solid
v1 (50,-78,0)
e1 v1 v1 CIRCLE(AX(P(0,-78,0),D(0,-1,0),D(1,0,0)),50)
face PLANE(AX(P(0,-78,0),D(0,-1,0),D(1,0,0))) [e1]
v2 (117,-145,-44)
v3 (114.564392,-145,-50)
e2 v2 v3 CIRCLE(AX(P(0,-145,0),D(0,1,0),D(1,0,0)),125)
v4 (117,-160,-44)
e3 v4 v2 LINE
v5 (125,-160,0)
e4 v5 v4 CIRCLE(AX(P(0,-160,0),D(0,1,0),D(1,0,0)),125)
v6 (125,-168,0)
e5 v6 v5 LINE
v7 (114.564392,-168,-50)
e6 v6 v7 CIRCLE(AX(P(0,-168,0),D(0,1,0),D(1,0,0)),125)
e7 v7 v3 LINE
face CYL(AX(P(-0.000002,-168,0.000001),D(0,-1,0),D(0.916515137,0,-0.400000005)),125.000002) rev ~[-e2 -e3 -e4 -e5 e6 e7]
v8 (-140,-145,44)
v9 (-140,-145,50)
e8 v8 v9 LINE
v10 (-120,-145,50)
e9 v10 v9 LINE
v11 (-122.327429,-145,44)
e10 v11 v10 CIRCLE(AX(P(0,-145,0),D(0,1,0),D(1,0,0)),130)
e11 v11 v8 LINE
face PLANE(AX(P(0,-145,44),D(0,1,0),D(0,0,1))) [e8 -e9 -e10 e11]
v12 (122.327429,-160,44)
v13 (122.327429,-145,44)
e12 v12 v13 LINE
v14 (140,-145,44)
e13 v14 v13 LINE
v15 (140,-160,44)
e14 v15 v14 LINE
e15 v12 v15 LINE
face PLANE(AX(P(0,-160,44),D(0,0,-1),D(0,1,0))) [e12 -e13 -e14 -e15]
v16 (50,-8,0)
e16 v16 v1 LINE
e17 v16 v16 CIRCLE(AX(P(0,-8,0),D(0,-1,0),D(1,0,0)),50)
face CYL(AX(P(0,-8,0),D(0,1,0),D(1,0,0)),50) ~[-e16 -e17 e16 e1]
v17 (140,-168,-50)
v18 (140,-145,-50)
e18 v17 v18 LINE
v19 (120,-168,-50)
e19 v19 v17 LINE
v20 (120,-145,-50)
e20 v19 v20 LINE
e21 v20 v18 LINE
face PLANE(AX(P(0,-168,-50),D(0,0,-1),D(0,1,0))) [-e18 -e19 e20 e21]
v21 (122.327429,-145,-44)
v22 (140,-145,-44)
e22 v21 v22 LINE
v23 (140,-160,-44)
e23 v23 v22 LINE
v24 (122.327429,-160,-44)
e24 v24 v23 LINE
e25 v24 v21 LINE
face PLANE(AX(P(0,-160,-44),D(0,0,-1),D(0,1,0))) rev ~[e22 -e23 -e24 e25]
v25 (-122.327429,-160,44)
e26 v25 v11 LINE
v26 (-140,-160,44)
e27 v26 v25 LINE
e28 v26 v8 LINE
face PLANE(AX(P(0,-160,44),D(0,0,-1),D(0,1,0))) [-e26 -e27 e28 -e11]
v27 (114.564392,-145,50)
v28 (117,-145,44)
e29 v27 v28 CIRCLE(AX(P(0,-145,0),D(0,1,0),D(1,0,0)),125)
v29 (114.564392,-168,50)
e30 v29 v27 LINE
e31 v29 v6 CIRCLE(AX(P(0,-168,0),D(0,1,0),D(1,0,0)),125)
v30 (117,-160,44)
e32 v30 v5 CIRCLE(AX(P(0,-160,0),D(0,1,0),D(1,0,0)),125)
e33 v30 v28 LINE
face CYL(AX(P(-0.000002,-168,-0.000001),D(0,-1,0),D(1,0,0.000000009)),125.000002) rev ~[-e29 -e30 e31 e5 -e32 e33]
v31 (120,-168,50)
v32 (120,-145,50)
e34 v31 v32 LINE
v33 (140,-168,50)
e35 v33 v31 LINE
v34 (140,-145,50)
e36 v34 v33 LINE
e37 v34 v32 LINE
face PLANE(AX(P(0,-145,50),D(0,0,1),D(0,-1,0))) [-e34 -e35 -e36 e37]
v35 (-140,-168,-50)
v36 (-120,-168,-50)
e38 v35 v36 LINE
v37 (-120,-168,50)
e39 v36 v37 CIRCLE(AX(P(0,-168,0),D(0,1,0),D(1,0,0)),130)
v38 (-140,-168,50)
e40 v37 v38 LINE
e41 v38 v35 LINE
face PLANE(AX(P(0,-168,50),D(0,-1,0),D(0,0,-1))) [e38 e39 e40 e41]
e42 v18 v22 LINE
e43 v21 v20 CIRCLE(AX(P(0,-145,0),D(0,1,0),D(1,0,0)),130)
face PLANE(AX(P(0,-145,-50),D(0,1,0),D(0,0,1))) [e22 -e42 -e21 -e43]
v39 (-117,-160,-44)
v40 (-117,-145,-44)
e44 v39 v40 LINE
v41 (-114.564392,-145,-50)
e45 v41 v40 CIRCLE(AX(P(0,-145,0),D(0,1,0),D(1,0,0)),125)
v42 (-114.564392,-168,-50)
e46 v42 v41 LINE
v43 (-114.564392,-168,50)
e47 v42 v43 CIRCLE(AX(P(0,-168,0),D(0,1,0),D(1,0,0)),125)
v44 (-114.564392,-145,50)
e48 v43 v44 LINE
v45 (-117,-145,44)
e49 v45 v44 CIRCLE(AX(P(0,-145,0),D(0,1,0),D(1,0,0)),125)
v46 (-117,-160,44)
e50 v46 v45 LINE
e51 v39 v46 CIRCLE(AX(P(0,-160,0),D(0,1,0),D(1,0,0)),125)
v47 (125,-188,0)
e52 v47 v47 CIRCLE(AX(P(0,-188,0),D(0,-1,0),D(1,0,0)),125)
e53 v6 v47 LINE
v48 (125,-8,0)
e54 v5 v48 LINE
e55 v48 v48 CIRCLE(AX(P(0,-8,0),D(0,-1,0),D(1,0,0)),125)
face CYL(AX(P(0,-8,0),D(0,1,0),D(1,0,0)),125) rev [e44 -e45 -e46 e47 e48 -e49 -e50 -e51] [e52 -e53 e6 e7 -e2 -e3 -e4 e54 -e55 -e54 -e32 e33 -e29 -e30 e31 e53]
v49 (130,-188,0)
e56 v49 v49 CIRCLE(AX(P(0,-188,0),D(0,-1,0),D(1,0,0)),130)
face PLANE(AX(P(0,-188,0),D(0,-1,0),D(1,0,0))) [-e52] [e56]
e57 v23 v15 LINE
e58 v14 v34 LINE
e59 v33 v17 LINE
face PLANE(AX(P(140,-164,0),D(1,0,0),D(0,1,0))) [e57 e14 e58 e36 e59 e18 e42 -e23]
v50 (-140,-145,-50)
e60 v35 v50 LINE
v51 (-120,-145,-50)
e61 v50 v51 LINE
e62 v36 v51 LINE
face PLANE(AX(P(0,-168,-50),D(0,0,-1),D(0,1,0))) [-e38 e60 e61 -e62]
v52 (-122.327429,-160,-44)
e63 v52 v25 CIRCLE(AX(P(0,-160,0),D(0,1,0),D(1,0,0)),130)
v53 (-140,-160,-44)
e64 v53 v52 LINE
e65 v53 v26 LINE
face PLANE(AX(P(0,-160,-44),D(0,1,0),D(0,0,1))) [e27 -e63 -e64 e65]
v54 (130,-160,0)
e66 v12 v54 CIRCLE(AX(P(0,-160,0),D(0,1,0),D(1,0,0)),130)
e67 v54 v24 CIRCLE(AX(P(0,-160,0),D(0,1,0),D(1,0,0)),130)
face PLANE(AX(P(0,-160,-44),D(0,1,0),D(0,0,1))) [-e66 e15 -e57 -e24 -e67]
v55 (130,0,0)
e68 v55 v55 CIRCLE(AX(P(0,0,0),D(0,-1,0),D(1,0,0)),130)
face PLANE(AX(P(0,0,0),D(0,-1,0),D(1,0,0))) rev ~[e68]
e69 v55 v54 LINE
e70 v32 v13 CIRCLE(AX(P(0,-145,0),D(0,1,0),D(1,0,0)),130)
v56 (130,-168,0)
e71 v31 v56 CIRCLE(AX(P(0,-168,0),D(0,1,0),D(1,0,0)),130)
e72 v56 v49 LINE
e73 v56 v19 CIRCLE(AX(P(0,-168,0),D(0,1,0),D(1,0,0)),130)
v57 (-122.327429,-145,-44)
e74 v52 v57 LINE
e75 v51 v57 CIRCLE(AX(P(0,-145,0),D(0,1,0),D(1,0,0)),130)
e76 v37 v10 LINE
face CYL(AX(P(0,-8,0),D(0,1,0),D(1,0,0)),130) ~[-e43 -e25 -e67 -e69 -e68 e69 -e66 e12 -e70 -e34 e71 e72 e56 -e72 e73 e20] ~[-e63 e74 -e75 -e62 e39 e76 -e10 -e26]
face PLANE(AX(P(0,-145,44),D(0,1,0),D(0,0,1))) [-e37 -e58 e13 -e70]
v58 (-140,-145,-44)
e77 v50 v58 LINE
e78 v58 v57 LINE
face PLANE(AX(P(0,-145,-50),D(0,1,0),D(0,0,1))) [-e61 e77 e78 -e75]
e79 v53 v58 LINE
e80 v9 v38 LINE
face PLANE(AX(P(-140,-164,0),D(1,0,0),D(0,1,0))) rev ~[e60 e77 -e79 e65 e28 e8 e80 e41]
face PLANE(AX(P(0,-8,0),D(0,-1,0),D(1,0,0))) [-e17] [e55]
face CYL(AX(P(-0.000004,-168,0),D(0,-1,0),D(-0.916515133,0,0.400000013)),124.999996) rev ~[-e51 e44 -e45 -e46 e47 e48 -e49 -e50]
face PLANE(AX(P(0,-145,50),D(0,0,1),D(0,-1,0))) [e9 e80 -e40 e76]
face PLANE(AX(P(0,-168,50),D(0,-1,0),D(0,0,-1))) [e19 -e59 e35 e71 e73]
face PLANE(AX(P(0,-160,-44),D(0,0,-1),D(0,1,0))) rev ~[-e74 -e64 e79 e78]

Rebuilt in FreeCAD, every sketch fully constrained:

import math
import FreeCAD as App
import Part
import Sketcher
from FreeCAD import Vector
Q = App.Units.Quantity


def add_polygon(sketch, points):
    """Adds a closed chain of lines whose ends are joined by coincident constraints."""
    first, n = sketch.GeometryCount, len(points)
    for a, b in zip(points, points[1:] + points[:1]):
        sketch.addGeometry(Part.LineSegment(App.Vector(*a, 0), App.Vector(*b, 0)), False)
    for i in range(n):
        sketch.addConstraint(Sketcher.Constraint("Coincident", first + i, 2, first + (i + 1) % n, 1))

doc = App.newDocument("Part")
params = doc.addObject("Spreadsheet::Sheet", "Params")
for row, (alias, value) in enumerate([
    ("sketch1_diameter", "260 mm"),
    ("pad1_length", "8 mm"),
    ("sketch2_diameter", "260 mm"),
    ("sketch2_diameter2", "250 mm"),
    ("pad2_length", "180 mm"),
    ("sketch3_diameter", "100 mm"),
    ("pad3_length", "70 mm"),
    ("sketch4_width", "23 mm"),
    ("sketch4_width2", "15 mm"),
    ("sketch4_height", "100 mm"),
    ("sketch4_height2", "6 mm"),
    ("pad4_length", "280 mm"),
    ("sketch5_radius", "125.000002 mm"),
    ("pocket1_length", "25 mm"),
], start=1):
    params.set(f"A{row}", alias)
    params.set(f"B{row}", "=" + value)
    params.setAlias(f"B{row}", alias)

body = doc.addObject("PartDesign::Body", "Body")

# Sketch on XZ plane
sketch1 = doc.addObject("Sketcher::SketchObject", "Sketch")
body.addObject(sketch1)
sketch1.AttachmentSupport = (doc.XZ_Plane, [""])
sketch1.MapMode = "FlatFace"
sketch1.addGeometry(Part.Circle(Vector(0, 0, 0), Vector(0, 0, 1), 130), False)
sketch1.addConstraint([
    Sketcher.Constraint("Coincident", 0, 3, -1, 1),
    Sketcher.Constraint("Diameter", 0, Q("260 mm")),
])
sketch1.setExpression("Constraints[1]", "Params.sketch1_diameter")
pad1 = doc.addObject("PartDesign::Pad", "Pad")
body.addObject(pad1)
pad1.Profile = sketch1
pad1.setExpression("Length", "Params.pad1_length")

# Sketch on XZ plane
sketch2 = doc.addObject("Sketcher::SketchObject", "Sketch001")
body.addObject(sketch2)
sketch2.AttachmentSupport = (doc.XZ_Plane, [""])
sketch2.MapMode = "FlatFace"
sketch2.AttachmentOffset = App.Placement(Vector(0, 0, 8), App.Rotation())
sketch2.addGeometry([
    Part.Circle(Vector(0, 0, 0), Vector(0, 0, 1), 130),
    Part.Circle(Vector(0, 0, 0), Vector(0, 0, 1), 125),
], False)
sketch2.addConstraint([
    Sketcher.Constraint("Coincident", 0, 3, -1, 1),
    Sketcher.Constraint("Coincident", 1, 3, -1, 1),
    Sketcher.Constraint("Diameter", 0, Q("260 mm")),
    Sketcher.Constraint("Diameter", 1, Q("250 mm")),
])
sketch2.setExpression("Constraints[2]", "Params.sketch2_diameter")
sketch2.setExpression("Constraints[3]", "Params.sketch2_diameter2")
pad2 = doc.addObject("PartDesign::Pad", "Pad001")
body.addObject(pad2)
pad2.Profile = sketch2
pad2.setExpression("Length", "Params.pad2_length")

# Sketch on XZ plane
sketch3 = doc.addObject("Sketcher::SketchObject", "Sketch002")
body.addObject(sketch3)
sketch3.AttachmentSupport = (doc.XZ_Plane, [""])
sketch3.MapMode = "FlatFace"
sketch3.AttachmentOffset = App.Placement(Vector(0, 0, 8), App.Rotation())
sketch3.addGeometry(Part.Circle(Vector(0, 0, 0), Vector(0, 0, 1), 50), False)
sketch3.addConstraint([
    Sketcher.Constraint("Coincident", 0, 3, -1, 1),
    Sketcher.Constraint("Diameter", 0, Q("100 mm")),
])
sketch3.setExpression("Constraints[1]", "Params.sketch3_diameter")
pad3 = doc.addObject("PartDesign::Pad", "Pad002")
body.addObject(pad3)
pad3.Profile = sketch3
pad3.setExpression("Length", "Params.pad3_length")

# Sketch on YZ plane
sketch4 = doc.addObject("Sketcher::SketchObject", "Sketch003")
body.addObject(sketch4)
sketch4.AttachmentSupport = (doc.YZ_Plane, [""])
sketch4.MapMode = "FlatFace"
add_polygon(sketch4, [(-168, 50), (-168, -50), (-145, -50), (-145, -44), (-160, -44), (-160, 44), (-145, 44), (-145, 50)])  # lines 0-7
sketch4.addConstraint([
    Sketcher.Constraint("Vertical", 0),
    Sketcher.Constraint("Horizontal", 1),
    Sketcher.Constraint("Vertical", 2),
    Sketcher.Constraint("Horizontal", 3),
    Sketcher.Constraint("Vertical", 4),
    Sketcher.Constraint("Horizontal", 5),
    Sketcher.Constraint("Vertical", 6),
    Sketcher.Constraint("Horizontal", 7),
    Sketcher.Constraint("Symmetric", 2, 2, 5, 2, -1),
    Sketcher.Constraint("Equal", 2, 6),
    Sketcher.Constraint("DistanceX", 1, 1, 1, 2, Q("23 mm")),
    Sketcher.Constraint("DistanceX", 3, 2, 3, 1, Q("15 mm")),
    Sketcher.Constraint("DistanceY", 0, 2, 0, 1, Q("100 mm")),
    Sketcher.Constraint("DistanceY", 2, 1, 2, 2, Q("6 mm")),
    Sketcher.Constraint("DistanceX", 0, 2, -1, 1, Q("168 mm")),
])
sketch4.setExpression("Constraints[18]", "Params.sketch4_width")
sketch4.setExpression("Constraints[19]", "Params.sketch4_width2")
sketch4.setExpression("Constraints[20]", "Params.sketch4_height")
sketch4.setExpression("Constraints[21]", "Params.sketch4_height2")
pad4 = doc.addObject("PartDesign::Pad", "Pad003")
body.addObject(pad4)
pad4.Profile = sketch4
pad4.setExpression("Length", "Params.pad4_length")
pad4.Midplane = True

# Sketch on XZ plane
sketch5 = doc.addObject("Sketcher::SketchObject", "Sketch004")
body.addObject(sketch5)
sketch5.AttachmentSupport = (doc.XZ_Plane, [""])
sketch5.MapMode = "FlatFace"
sketch5.AttachmentOffset = App.Placement(Vector(0, 0, 168), App.Rotation())
sketch5.addGeometry([
    Part.LineSegment(Vector(115, 50, 0), Vector(-115, 50, 0)),  # 0
    Part.ArcOfCircle(Part.Circle(Vector(0, 0, 0), Vector(0, 0, 1), 125), math.radians(156), math.radians(204)),  # 1
    Part.LineSegment(Vector(-115, -50, 0), Vector(115, -50, 0)),  # 2
    Part.ArcOfCircle(Part.Circle(Vector(0, 0, 0), Vector(0, 0, 1), 125), math.radians(-24), math.radians(0)),  # 3
    Part.ArcOfCircle(Part.Circle(Vector(0, 0, 0), Vector(0, 0, 1), 125), math.radians(0), math.radians(24)),  # 4
], False)
sketch5.addConstraint([
    Sketcher.Constraint("Coincident", 0, 2, 1, 1),
    Sketcher.Constraint("Coincident", 1, 2, 2, 1),
    Sketcher.Constraint("Coincident", 2, 2, 3, 1),
    Sketcher.Constraint("Tangent", 3, 2, 4, 1),
    Sketcher.Constraint("Coincident", 4, 2, 0, 1),
    Sketcher.Constraint("Horizontal", 0),
    Sketcher.Constraint("Horizontal", 2),
    Sketcher.Constraint("Coincident", 1, 3, -1, 1),
    Sketcher.Constraint("Coincident", 3, 3, -1, 1),
    Sketcher.Constraint("Equal", 3, 4),
    Sketcher.Constraint("Symmetric", 0, 2, 2, 2, -1, 1),
    Sketcher.Constraint("PointOnObject", 3, 2, -1),
    Sketcher.Constraint("Radius", 3, Q("125.000002 mm")),
    Sketcher.Constraint("DistanceY", -1, 1, 0, 2, Q("50 mm")),
])
sketch5.setExpression("Constraints[12]", "Params.sketch5_radius")
pocket1 = doc.addObject("PartDesign::Pocket", "Pocket")
body.addObject(pocket1)
pocket1.Profile = sketch5
pocket1.setExpression("Length", "Params.pocket1_length")

doc.recompute()
